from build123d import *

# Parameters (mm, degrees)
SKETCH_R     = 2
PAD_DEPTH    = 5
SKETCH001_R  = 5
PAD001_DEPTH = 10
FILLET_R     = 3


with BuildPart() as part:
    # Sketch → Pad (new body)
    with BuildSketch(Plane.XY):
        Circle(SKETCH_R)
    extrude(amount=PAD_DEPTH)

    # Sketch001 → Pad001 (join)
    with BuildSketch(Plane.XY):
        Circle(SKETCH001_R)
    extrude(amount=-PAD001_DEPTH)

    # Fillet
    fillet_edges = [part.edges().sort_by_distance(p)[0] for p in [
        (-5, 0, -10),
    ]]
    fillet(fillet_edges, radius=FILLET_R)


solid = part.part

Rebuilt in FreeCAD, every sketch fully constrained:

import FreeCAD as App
import Part
import Sketcher

V = App.Vector


def edges_at(feature, points):
    """Names of the edges that pass closest to the given points."""
    edges = feature.Shape.Edges
    near = lambda p: min(range(len(edges)), key=lambda i: edges[i].distToShape(Part.Vertex(*p))[0])
    return sorted({f"Edge{near(p) + 1}" for p in points})

doc = App.newDocument("Part")
params = doc.addObject("Spreadsheet::Sheet", "Params")
for row, (alias, value) in enumerate([
    ("sketch1_diameter", "4 mm"),
    ("pad1_length", "5 mm"),
    ("sketch2_diameter", "10 mm"),
    ("pad2_length", "10 mm"),
    ("fillet_radius", "3 mm"),
], start=1):
    params.set(f"A{row}", alias)
    params.set(f"B{row}", "=" + value)
    params.setAlias(f"B{row}", alias)

body = doc.addObject("PartDesign::Body", "Body")

# Sketch on XY plane
sketch1 = body.newObject("Sketcher::SketchObject", "Sketch")
sketch1.AttachmentSupport = (doc.getObject("XY_Plane"), [""])
sketch1.MapMode = "FlatFace"
sketch1.addGeometry(Part.Circle(V(0, 0, 0), V(0, 0, 1), 2), False)
sketch1.addConstraint(Sketcher.Constraint("Coincident", 0, 3, -1, 1))
sketch1.addConstraint(Sketcher.Constraint("Diameter", 0, 4.0))
sketch1.setExpression("Constraints[1]", "Params.sketch1_diameter")
pad1 = body.newObject("PartDesign::Pad", "Pad")
pad1.Profile = sketch1
pad1.setExpression("Length", "Params.pad1_length")

# Sketch on XY plane
sketch2 = body.newObject("Sketcher::SketchObject", "Sketch001")
sketch2.AttachmentSupport = (doc.getObject("XY_Plane"), [""])
sketch2.MapMode = "FlatFace"
sketch2.addGeometry(Part.Circle(V(0, 0, 0), V(0, 0, 1), 5), False)
sketch2.addConstraint(Sketcher.Constraint("Coincident", 0, 3, -1, 1))
sketch2.addConstraint(Sketcher.Constraint("Diameter", 0, 10.0))
sketch2.setExpression("Constraints[1]", "Params.sketch2_diameter")
pad2 = body.newObject("PartDesign::Pad", "Pad001")
pad2.Profile = sketch2
pad2.setExpression("Length", "Params.pad2_length")
pad2.Reversed = True
doc.recompute()

fillet = body.newObject("PartDesign::Fillet", "Fillet")
fillet.Base = (pad2, edges_at(pad2, [(-5, 0, -10)]))
fillet.setExpression("Radius", "Params.fillet_radius")

doc.recompute()
